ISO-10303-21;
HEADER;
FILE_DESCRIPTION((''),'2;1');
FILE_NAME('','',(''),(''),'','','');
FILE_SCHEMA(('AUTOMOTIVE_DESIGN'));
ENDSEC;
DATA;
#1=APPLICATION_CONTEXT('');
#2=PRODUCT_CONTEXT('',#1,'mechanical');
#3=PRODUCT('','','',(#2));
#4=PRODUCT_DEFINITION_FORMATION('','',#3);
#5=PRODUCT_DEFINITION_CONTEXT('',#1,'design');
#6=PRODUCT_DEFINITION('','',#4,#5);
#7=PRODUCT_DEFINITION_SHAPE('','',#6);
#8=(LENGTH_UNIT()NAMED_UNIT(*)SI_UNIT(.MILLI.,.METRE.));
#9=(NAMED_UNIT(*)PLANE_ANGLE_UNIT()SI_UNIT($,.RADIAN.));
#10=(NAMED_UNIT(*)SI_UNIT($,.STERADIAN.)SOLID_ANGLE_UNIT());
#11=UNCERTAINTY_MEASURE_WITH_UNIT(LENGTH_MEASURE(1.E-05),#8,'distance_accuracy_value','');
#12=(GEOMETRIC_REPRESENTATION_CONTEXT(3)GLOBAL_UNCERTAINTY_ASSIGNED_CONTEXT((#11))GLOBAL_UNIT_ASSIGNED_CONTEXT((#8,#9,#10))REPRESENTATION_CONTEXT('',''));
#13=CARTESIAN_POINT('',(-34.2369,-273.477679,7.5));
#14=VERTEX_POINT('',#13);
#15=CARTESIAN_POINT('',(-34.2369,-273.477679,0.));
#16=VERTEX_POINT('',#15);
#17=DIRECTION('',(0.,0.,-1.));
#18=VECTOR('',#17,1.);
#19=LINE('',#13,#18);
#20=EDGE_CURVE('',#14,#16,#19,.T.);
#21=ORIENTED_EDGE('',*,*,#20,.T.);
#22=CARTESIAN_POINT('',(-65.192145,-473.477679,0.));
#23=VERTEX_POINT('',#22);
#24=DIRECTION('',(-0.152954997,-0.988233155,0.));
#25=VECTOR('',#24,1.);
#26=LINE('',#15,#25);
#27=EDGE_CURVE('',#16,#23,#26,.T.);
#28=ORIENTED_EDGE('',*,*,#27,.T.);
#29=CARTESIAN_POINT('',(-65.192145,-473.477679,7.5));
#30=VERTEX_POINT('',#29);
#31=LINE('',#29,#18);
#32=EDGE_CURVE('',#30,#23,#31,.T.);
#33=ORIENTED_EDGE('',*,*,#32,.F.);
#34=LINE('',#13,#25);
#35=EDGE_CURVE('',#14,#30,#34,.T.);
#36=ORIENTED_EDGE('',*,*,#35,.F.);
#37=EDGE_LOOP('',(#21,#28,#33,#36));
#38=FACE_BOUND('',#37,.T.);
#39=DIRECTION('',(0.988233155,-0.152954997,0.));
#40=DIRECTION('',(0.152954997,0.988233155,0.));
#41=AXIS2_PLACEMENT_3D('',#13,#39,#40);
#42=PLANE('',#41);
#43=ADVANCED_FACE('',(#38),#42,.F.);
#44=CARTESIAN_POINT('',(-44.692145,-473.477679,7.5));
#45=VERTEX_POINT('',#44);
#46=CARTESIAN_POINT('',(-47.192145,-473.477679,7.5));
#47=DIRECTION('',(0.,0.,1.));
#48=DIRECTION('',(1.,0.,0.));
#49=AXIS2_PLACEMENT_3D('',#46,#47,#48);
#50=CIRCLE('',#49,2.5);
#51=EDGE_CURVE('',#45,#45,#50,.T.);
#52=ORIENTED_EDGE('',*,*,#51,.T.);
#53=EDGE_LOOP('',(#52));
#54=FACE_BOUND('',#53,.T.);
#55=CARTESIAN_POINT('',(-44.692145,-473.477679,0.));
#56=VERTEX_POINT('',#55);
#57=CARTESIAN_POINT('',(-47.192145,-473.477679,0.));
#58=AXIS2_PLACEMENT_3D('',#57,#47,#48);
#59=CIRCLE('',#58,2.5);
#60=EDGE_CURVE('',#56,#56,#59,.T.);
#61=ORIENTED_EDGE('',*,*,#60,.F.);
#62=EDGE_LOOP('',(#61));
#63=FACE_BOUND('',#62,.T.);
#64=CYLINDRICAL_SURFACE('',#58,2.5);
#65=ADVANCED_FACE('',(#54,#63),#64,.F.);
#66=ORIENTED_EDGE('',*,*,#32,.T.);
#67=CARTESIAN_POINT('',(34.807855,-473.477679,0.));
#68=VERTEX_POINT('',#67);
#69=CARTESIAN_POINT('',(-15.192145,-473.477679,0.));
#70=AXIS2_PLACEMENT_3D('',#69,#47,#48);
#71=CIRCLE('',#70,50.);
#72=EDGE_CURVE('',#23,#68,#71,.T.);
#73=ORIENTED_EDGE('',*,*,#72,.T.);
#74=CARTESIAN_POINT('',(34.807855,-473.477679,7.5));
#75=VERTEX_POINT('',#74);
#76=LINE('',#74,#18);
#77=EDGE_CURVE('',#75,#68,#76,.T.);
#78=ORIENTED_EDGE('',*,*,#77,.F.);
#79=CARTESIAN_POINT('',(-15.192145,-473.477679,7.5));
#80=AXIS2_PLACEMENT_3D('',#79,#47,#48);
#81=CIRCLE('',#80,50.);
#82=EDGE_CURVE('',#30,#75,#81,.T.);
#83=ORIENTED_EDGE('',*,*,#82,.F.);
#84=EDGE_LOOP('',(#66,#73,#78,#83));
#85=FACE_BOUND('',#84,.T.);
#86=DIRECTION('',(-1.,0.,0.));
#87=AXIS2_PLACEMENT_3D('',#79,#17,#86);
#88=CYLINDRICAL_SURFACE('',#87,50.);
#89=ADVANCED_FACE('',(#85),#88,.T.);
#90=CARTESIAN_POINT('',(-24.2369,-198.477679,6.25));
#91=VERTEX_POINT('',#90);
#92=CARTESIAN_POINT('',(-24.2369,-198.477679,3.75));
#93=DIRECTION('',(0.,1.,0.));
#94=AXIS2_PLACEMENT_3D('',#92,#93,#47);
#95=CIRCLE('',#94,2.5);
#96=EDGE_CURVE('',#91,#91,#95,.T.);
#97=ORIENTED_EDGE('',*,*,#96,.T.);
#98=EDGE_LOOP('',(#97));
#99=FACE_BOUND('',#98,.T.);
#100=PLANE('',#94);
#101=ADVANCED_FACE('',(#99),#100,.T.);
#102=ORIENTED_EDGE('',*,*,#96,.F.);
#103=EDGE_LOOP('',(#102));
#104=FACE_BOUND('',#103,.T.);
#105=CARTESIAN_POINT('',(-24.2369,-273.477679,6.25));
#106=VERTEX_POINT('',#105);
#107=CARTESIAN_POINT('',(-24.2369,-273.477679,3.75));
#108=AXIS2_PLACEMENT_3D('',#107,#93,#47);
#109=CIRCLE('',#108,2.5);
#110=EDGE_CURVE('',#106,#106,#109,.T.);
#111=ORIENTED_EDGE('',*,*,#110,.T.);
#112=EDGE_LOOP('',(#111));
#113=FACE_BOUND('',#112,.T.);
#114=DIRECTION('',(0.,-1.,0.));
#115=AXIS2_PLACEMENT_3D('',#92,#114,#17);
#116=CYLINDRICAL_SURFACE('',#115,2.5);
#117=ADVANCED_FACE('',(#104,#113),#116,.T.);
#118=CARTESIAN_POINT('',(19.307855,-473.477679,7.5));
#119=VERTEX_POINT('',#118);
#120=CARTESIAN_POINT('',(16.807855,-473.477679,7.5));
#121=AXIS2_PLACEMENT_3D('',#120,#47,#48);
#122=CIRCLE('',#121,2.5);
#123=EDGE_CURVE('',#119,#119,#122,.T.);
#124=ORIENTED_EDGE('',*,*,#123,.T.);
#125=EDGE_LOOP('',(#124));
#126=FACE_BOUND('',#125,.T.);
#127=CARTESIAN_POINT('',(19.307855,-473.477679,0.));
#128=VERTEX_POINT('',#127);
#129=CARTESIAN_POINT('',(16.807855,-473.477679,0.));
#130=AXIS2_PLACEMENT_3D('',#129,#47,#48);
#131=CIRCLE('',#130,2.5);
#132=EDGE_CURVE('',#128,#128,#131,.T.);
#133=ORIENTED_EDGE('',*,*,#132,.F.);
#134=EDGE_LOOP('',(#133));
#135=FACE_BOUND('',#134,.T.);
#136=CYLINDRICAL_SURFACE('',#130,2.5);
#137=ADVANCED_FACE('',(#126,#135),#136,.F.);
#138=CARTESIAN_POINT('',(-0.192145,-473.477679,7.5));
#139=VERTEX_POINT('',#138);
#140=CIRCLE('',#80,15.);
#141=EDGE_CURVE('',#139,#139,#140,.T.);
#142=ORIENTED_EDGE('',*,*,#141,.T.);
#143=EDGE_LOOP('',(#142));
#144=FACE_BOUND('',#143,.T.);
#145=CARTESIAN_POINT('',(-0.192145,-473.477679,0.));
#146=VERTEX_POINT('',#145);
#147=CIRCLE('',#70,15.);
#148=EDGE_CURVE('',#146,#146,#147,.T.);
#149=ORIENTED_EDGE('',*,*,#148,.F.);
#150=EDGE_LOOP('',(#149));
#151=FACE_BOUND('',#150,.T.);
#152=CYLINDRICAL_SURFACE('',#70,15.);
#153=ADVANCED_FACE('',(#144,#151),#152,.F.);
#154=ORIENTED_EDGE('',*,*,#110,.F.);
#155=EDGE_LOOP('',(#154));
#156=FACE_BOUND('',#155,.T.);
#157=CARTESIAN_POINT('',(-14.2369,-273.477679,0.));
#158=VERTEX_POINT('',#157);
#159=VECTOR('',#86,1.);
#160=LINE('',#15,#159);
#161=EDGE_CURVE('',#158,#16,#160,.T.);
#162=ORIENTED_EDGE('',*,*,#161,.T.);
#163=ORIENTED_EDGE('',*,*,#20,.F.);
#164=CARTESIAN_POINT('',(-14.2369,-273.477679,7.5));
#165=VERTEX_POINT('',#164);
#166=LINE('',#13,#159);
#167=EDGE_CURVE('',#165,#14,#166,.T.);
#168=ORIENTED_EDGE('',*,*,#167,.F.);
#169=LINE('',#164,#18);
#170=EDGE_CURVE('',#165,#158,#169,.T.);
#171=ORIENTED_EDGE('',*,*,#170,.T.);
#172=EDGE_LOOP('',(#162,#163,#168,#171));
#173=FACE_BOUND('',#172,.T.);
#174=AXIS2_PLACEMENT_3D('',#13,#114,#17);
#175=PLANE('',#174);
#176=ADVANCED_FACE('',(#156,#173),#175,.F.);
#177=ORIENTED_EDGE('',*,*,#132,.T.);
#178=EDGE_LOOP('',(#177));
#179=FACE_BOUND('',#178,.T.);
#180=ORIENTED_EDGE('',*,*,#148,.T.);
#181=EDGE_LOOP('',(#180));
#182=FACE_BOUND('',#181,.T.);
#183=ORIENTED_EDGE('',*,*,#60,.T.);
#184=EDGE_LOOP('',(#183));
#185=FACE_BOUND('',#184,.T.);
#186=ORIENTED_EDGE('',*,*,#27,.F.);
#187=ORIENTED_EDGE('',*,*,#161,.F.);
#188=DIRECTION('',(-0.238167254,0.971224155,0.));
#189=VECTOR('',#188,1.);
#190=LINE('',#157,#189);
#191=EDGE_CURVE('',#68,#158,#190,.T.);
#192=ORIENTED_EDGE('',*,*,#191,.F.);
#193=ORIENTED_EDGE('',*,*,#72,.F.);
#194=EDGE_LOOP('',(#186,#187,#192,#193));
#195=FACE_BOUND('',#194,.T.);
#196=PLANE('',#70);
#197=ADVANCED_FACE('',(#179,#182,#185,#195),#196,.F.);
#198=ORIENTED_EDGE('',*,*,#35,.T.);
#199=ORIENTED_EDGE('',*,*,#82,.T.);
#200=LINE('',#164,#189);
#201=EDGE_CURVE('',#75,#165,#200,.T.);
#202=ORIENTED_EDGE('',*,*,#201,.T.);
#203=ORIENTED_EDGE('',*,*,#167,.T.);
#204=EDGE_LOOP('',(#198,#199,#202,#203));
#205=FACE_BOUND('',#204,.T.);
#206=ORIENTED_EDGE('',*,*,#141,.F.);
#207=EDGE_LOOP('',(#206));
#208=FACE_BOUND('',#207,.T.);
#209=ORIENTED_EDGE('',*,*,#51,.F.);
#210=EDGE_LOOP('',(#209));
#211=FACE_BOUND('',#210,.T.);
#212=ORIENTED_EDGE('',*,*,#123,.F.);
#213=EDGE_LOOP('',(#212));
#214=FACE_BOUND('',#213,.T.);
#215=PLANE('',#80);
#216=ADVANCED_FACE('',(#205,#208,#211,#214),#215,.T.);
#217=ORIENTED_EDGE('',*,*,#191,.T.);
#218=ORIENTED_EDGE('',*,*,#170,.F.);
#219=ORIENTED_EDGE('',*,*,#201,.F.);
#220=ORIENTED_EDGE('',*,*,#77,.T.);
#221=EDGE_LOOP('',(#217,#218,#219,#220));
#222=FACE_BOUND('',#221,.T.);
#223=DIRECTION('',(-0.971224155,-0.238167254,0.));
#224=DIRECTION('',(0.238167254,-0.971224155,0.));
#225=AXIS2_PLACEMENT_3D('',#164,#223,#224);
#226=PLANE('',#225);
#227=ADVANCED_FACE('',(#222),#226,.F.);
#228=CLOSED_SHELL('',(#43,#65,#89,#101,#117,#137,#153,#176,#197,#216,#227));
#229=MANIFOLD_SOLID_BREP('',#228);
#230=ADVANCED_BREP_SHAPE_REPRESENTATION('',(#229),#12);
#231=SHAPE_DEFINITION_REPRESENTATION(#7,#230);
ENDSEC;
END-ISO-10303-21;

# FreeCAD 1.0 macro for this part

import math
import FreeCAD as App
import Part
import Sketcher

doc = App.newDocument("Part")
body = doc.addObject("PartDesign::Body", "Body")

sketch1 = body.newObject("Sketcher::SketchObject", "Sketch")
sketch1.AttachmentSupport = (doc.getObject("XY_Plane"), [""])
sketch1.MapMode = "FlatFace"
sketch1.addGeometry([
    Part.LineSegment(App.Vector(-14, -273, 0), App.Vector(-34, -273, 0)),
    Part.LineSegment(App.Vector(-34, -273, 0), App.Vector(-65, -473, 0)),
    Part.ArcOfCircle(Part.Circle(App.Vector(-15, -473, 0), App.Vector(0, 0, 1), 50), math.radians(180), math.radians(360)),
    Part.LineSegment(App.Vector(35, -473, 0), App.Vector(-14, -273, 0)),
], False)
sketch1.addConstraint([
    Sketcher.Constraint("Coincident", 0, 2, 1, 1),
    Sketcher.Constraint("Coincident", 1, 2, 2, 1),
    Sketcher.Constraint("Coincident", 2, 2, 3, 1),
    Sketcher.Constraint("Coincident", 3, 2, 0, 1),
    Sketcher.Constraint("Horizontal", 0),
    Sketcher.Constraint("Horizontal", 2, 3, 1, 2),
    Sketcher.Constraint("Horizontal", 1, 2, 2, 2),
    Sketcher.Constraint("Radius", 2, 50.0),
    Sketcher.Constraint("DistanceX", 0, 2, 0, 1, 20.0),
    Sketcher.Constraint("DistanceY", 2, 3, 0, 2, 200.0),
    Sketcher.Constraint("DistanceX", 0, 2, -1, 1, 34.2369),
    Sketcher.Constraint("Distance", 1, 202.38139),
    Sketcher.Constraint("DistanceY", 2, 3, -1, 1, 473.477679),
])
pad1 = body.newObject("PartDesign::Pad", "Pad")
pad1.Profile = sketch1
pad1.Length = 7.5

sketch2 = body.newObject("Sketcher::SketchObject", "Sketch001")
sketch2.AttachmentSupport = (doc.getObject("XZ_Plane"), [""])
sketch2.MapMode = "FlatFace"
sketch2.AttachmentOffset = App.Placement(App.Vector(0, 0, 273.477679), App.Rotation())
sketch2.addGeometry(Part.Circle(App.Vector(-24.2, 3.8, 0), App.Vector(0, 0, 1), 2.5), False)
sketch2.addConstraint([
    Sketcher.Constraint("Diameter", 0, 5.0),
    Sketcher.Constraint("DistanceY", -1, 1, 0, 3, 3.75),
    Sketcher.Constraint("DistanceX", 0, 3, -1, 1, 24.2369),
])
pad2 = body.newObject("PartDesign::Pad", "Pad001")
pad2.Profile = sketch2
pad2.Length = 75
pad2.Reversed = True

sketch3 = body.newObject("Sketcher::SketchObject", "Sketch002")
sketch3.AttachmentSupport = (doc.getObject("XY_Plane"), [""])
sketch3.MapMode = "FlatFace"
sketch3.AttachmentOffset = App.Placement(App.Vector(0, 0, 7.5), App.Rotation())
sketch3.addGeometry([
    Part.Circle(App.Vector(-15.2, -473.5, 0), App.Vector(0, 0, 1), 15),
    Part.Circle(App.Vector(16.8, -473.5, 0), App.Vector(0, 0, 1), 2.5),
    Part.Circle(App.Vector(-47.2, -473.5, 0), App.Vector(0, 0, 1), 2.5),
], False)
sketch3.addConstraint([
    Sketcher.Constraint("Equal", 1, 2),
    Sketcher.Constraint("Horizontal", 0, 3, 1, 3),
    Sketcher.Constraint("Horizontal", 1, 3, 2, 3),
    Sketcher.Constraint("Diameter", 0, 30.0),
    Sketcher.Constraint("Diameter", 1, 5.0),
    Sketcher.Constraint("DistanceX", 0, 3, 1, 3, 32.0),
    Sketcher.Constraint("DistanceX", 2, 3, 0, 3, 32.0),
    Sketcher.Constraint("DistanceY", 0, 3, -1, 1, 473.477679),
    Sketcher.Constraint("DistanceX", 0, 3, -1, 1, 15.192145),
])
pocket1 = body.newObject("PartDesign::Pocket", "Pocket")
pocket1.Profile = sketch3
pocket1.Type = "ThroughAll"

doc.recompute()
